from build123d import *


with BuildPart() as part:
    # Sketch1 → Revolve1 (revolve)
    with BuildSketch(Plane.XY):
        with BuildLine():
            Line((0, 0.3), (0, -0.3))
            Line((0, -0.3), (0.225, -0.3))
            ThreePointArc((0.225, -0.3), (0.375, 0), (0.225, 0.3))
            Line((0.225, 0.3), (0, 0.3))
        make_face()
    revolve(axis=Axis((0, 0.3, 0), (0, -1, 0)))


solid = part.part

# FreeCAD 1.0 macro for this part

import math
import FreeCAD as App
import Part
import Sketcher
from FreeCAD import Vector

doc = App.newDocument("Part")
body = doc.addObject("PartDesign::Body", "Body")

# Sketch on XY plane
sketch1 = doc.addObject("Sketcher::SketchObject", "Sketch")
body.addObject(sketch1)
sketch1.AttachmentSupport = (doc.XY_Plane, [""])
sketch1.MapMode = "FlatFace"
sketch1.addGeometry(Part.LineSegment(Vector(0, 0.3, 0), Vector(0, -0.3, 0)), False)
sketch1.addGeometry(Part.LineSegment(Vector(0, -0.3, 0), Vector(0.225, -0.3, 0)), False)
sketch1.addGeometry(Part.ArcOfCircle(Part.Circle(Vector(0, 0, 0), Vector(0, 0, 1), 0.375), math.radians(-53.130102), math.radians(53.130102)), False)
sketch1.addGeometry(Part.LineSegment(Vector(0.225, 0.3, 0), Vector(0, 0.3, 0)), False)
sketch1.addConstraint(Sketcher.Constraint("Coincident", 0, 2, 1, 1))
sketch1.addConstraint(Sketcher.Constraint("Coincident", 1, 2, 2, 1))
sketch1.addConstraint(Sketcher.Constraint("Coincident", 2, 2, 3, 1))
sketch1.addConstraint(Sketcher.Constraint("Coincident", 3, 2, 0, 1))
sketch1.addConstraint(Sketcher.Constraint("Vertical", 0))
sketch1.addConstraint(Sketcher.Constraint("Horizontal", 1))
sketch1.addConstraint(Sketcher.Constraint("Horizontal", 3))
sketch1.addConstraint(Sketcher.Constraint("Coincident", 2, 3, -1, 1))
sketch1.addConstraint(Sketcher.Constraint("Symmetric", 0, 2, 3, 2, -1, 1))
sketch1.addConstraint(Sketcher.Constraint("DistanceY", 0, 2, 0, 1, 0.6))
sketch1.addConstraint(Sketcher.Constraint("Radius", 2, 0.375))
revolution = doc.addObject("PartDesign::Revolution", "Revolution")
body.addObject(revolution)
revolution.Profile = sketch1
revolution.ReferenceAxis = (sketch1, ["V_Axis"])
revolution.Angle = 360

doc.recompute()
